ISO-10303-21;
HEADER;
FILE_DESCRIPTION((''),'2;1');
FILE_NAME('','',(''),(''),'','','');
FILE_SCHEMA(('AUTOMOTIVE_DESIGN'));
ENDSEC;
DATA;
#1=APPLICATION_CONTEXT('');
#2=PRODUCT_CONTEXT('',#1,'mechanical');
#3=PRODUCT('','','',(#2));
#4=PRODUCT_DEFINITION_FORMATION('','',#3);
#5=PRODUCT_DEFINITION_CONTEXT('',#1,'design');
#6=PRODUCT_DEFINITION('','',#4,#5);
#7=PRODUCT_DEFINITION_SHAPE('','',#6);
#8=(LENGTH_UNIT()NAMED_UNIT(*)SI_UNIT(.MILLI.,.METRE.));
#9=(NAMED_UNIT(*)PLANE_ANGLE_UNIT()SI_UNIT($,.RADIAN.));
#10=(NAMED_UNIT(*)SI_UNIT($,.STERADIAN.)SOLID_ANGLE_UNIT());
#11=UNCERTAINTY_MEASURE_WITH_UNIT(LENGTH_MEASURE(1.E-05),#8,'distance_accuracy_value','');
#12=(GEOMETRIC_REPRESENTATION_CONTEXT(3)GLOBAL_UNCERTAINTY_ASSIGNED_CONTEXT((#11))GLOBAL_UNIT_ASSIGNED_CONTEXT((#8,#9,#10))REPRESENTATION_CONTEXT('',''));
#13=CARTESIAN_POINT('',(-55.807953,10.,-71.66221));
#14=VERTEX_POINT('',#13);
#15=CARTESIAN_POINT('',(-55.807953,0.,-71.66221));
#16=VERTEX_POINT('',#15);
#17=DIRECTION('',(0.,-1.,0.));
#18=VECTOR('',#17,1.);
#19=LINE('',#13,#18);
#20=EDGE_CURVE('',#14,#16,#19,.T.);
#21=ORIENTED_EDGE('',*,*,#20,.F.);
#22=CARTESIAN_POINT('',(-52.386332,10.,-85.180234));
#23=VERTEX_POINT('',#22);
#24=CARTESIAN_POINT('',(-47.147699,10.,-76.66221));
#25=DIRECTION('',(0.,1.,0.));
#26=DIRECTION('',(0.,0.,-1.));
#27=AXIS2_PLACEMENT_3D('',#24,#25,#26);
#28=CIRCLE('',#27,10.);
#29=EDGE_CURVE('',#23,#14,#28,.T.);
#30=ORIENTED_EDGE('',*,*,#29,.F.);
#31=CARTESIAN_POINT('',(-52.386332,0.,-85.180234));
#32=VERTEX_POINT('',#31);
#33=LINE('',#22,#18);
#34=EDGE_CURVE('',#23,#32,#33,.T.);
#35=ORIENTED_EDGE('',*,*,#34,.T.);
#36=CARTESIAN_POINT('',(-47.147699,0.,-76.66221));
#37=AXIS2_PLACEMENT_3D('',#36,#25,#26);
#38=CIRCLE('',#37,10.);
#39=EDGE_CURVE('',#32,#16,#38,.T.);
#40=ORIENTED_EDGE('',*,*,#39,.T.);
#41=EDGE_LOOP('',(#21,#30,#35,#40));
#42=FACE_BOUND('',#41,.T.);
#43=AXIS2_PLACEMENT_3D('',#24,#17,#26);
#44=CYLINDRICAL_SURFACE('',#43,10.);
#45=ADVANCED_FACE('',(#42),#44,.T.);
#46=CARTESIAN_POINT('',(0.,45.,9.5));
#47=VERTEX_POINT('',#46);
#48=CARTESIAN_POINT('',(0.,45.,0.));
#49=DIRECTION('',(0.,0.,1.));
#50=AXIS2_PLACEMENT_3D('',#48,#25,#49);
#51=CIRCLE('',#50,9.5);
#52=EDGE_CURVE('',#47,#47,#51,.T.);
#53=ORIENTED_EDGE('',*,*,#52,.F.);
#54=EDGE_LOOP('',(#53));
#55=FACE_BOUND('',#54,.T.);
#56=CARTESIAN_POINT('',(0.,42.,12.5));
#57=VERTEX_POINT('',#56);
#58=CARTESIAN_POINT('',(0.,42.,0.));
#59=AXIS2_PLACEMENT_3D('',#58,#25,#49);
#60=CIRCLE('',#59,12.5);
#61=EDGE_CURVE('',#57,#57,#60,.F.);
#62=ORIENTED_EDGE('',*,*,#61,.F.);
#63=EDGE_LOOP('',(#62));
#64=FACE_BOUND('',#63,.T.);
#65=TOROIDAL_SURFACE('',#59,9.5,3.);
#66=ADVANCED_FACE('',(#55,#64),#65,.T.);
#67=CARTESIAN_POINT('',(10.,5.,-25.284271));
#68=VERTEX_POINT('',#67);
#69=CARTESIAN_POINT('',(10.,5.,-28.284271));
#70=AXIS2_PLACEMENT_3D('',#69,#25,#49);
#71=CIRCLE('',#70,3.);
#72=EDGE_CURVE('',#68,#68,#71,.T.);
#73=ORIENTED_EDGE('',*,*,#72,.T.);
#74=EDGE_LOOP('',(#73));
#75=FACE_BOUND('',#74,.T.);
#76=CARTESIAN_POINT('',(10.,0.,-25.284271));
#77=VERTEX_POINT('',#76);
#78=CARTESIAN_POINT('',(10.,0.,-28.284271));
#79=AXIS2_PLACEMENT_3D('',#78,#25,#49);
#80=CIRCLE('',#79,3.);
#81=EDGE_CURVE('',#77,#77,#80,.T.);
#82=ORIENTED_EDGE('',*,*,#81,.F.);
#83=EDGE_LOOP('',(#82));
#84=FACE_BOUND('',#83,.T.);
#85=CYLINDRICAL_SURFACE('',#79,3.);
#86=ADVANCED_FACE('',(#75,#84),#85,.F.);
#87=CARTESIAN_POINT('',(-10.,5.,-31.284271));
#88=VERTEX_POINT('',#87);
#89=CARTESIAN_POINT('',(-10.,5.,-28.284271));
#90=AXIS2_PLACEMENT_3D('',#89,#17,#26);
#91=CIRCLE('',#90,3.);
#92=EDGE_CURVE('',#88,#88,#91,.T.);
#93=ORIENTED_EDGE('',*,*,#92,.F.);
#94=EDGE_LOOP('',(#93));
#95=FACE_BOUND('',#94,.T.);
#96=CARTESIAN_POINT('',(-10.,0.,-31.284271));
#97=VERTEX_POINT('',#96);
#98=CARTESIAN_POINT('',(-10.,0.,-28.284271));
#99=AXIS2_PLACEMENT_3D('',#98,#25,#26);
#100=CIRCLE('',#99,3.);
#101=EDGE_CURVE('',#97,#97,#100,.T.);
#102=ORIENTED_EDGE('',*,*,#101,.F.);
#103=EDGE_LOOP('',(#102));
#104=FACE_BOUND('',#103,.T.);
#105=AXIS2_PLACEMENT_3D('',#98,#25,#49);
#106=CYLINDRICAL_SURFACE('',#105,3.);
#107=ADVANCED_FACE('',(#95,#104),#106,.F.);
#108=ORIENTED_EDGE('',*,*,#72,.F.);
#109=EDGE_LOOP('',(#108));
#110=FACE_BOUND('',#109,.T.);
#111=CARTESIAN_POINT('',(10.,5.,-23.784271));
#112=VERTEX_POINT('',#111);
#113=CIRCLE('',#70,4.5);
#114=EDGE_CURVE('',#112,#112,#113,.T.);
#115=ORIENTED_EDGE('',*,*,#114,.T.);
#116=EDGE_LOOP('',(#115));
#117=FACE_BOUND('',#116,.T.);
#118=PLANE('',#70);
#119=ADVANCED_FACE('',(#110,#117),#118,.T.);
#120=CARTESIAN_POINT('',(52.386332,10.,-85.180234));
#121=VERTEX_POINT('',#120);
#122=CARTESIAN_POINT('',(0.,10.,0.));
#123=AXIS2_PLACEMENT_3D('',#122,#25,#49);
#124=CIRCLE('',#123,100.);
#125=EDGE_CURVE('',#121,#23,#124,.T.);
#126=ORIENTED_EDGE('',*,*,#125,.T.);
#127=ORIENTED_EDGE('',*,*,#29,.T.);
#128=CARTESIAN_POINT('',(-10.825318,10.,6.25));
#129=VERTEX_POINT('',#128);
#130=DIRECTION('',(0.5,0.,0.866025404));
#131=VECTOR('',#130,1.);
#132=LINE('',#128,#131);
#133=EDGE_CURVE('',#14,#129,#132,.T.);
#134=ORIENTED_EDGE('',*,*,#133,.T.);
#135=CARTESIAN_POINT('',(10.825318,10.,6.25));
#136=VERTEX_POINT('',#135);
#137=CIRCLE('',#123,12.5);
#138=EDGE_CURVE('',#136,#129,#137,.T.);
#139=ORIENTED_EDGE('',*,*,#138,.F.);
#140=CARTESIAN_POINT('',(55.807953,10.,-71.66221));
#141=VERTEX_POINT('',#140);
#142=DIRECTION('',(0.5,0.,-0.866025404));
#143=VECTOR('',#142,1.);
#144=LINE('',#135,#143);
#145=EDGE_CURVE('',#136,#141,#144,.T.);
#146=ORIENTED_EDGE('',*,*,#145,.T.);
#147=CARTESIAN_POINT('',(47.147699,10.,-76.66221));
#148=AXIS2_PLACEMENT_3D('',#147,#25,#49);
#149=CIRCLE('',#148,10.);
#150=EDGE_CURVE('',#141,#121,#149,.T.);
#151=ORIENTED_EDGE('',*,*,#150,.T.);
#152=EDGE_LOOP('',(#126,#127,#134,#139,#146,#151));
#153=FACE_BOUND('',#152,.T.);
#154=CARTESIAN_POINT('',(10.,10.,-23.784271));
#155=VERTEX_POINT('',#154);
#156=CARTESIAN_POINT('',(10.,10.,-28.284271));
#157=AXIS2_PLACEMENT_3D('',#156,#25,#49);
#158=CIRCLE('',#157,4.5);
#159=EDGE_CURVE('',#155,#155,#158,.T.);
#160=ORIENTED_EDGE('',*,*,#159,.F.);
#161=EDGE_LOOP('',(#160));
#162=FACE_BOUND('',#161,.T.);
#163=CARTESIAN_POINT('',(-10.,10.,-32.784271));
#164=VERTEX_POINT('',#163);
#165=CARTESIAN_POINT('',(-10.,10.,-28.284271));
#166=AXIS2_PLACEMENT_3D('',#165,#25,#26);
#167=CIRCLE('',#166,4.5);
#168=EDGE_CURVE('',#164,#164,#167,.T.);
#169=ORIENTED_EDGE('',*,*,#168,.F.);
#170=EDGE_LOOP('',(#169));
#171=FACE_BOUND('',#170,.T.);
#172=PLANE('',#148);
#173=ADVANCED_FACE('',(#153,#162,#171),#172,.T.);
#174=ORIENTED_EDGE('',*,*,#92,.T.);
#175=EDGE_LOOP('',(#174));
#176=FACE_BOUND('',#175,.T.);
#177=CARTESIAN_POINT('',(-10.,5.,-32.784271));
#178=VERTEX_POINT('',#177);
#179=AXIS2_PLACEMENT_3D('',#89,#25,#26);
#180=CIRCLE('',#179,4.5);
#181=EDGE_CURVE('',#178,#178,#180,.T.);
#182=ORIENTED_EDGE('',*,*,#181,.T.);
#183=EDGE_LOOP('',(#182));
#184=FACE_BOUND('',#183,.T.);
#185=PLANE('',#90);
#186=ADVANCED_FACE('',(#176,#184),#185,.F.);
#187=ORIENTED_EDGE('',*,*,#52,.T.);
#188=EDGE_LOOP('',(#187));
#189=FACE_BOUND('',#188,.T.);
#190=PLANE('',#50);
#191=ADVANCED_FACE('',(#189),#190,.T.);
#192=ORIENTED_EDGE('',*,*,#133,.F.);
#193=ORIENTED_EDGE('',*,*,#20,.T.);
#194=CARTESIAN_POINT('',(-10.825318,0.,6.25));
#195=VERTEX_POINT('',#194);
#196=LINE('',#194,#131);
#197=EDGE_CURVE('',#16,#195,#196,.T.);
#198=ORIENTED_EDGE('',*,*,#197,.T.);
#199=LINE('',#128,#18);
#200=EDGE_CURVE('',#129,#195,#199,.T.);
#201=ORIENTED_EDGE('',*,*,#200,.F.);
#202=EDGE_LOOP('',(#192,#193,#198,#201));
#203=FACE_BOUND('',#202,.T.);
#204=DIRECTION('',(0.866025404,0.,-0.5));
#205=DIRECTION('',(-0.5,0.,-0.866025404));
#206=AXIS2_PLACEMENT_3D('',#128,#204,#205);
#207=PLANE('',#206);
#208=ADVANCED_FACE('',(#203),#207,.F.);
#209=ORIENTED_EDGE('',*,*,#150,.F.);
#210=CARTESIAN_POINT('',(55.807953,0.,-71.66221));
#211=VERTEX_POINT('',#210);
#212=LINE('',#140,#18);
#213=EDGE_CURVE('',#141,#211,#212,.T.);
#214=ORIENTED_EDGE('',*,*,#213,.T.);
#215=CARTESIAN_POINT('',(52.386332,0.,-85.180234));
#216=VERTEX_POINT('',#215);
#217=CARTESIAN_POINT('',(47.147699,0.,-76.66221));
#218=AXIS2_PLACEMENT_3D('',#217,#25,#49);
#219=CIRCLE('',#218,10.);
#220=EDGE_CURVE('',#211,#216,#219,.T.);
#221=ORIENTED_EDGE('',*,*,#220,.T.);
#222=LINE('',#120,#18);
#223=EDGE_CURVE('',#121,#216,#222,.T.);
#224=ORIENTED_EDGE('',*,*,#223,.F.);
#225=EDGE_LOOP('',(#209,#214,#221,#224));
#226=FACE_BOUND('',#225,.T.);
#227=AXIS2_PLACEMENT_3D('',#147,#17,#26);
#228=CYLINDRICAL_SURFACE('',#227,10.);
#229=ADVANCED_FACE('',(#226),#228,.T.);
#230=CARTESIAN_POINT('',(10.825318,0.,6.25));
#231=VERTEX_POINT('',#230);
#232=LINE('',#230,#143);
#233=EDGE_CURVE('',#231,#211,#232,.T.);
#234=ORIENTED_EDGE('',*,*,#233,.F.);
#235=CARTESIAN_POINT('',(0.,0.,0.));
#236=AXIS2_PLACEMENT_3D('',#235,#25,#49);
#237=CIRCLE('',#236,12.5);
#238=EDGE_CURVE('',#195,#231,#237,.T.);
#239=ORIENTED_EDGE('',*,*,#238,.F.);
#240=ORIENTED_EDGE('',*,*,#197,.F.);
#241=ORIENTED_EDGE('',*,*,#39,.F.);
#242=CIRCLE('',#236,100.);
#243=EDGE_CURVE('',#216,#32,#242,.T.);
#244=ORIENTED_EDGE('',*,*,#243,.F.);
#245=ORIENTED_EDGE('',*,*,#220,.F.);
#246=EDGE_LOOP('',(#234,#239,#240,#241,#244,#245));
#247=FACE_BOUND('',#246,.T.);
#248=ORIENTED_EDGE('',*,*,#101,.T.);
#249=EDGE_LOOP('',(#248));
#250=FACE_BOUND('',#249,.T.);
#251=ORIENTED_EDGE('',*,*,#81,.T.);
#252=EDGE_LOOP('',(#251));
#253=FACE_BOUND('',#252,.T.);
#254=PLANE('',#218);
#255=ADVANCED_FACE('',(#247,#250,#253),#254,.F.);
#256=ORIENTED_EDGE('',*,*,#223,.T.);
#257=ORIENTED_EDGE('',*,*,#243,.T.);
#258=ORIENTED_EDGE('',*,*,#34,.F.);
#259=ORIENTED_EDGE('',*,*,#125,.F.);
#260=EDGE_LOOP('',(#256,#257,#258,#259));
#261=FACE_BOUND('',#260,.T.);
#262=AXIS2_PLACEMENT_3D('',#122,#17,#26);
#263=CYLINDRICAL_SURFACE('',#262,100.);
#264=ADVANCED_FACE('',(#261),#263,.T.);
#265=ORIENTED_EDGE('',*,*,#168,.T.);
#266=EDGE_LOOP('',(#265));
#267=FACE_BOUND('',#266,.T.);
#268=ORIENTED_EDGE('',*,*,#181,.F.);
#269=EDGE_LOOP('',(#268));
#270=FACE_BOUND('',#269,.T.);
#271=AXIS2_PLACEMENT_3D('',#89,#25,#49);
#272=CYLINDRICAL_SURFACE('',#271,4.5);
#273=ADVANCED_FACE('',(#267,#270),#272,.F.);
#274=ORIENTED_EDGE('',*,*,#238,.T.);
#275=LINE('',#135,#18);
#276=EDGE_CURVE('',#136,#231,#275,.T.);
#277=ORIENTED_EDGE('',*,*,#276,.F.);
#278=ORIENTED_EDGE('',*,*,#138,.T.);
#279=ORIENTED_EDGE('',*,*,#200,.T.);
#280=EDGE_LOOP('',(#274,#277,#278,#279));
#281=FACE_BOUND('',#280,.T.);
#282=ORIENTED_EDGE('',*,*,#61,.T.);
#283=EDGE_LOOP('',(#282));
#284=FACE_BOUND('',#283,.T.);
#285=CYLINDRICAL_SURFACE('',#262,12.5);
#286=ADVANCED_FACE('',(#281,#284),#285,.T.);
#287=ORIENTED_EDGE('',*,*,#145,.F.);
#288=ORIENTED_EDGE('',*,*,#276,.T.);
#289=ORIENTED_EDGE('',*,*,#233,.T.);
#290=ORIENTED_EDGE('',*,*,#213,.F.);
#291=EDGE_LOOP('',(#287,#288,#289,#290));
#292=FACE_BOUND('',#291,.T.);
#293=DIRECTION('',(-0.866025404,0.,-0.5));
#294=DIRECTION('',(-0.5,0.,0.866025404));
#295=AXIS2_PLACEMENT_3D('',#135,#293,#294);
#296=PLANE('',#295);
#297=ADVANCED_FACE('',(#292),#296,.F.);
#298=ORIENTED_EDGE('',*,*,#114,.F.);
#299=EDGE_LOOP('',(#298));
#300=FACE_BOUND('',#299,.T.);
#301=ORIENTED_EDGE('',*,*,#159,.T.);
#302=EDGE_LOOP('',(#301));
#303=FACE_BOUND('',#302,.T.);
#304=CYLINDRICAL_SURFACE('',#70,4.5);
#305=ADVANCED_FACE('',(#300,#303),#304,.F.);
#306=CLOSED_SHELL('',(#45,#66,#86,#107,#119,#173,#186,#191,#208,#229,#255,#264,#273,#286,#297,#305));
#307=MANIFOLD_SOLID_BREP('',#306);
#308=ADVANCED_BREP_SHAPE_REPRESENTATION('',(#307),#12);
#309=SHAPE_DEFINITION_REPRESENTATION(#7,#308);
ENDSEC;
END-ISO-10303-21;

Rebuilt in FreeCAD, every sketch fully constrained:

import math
import FreeCAD as App
import Part
import Sketcher

V = App.Vector
Q = App.Units.Quantity


def edges_at(feature, points):
    """Names of the edges that pass closest to the given points."""
    edges = feature.Shape.Edges
    near = lambda p: min(range(len(edges)), key=lambda i: edges[i].distToShape(Part.Vertex(*p))[0])
    return sorted({f"Edge{near(p) + 1}" for p in points})

doc = App.newDocument("Part")
body = doc.addObject("PartDesign::Body", "Body")

sketch1 = body.newObject("Sketcher::SketchObject", "Sketch")
sketch1.AttachmentSupport = (doc.getObject("XZ_Plane"), [""])
sketch1.MapMode = "FlatFace"
sketch1.addGeometry([
    Part.LineSegment(V(-56, -72, 0), V(-11, 6, 0)),
    Part.ArcOfCircle(Part.Circle(V(0, 0, 0), V(0, 0, 1), 12), math.radians(30), math.radians(150)),
    Part.LineSegment(V(11, 6, 0), V(56, -72, 0)),
    Part.ArcOfCircle(Part.Circle(V(47, -77, 0), V(0, 0, 1), 10), math.radians(-58), math.radians(30)),
    Part.ArcOfCircle(Part.Circle(V(0, 0, 0), V(0, 0, 1), 100), math.radians(-122), math.radians(-58)),
    Part.ArcOfCircle(Part.Circle(V(-47, -77, 0), V(0, 0, 1), 10), math.radians(150), math.radians(238)),
], False)
sketch1.addConstraint([
    Sketcher.Constraint("Tangent", 0, 2, 1, 2),
    Sketcher.Constraint("Tangent", 1, 1, 2, 1),
    Sketcher.Constraint("Tangent", 2, 2, 3, 2),
    Sketcher.Constraint("Tangent", 3, 1, 4, 2),
    Sketcher.Constraint("Tangent", 4, 1, 5, 2),
    Sketcher.Constraint("Tangent", 5, 1, 0, 1),
    Sketcher.Constraint("Coincident", 1, 3, -1, 1),
    Sketcher.Constraint("Coincident", 4, 3, -1, 1),
    Sketcher.Constraint("Equal", 3, 5),
    Sketcher.Constraint("Horizontal", 3, 3, 5, 3),
    Sketcher.Constraint("Radius", 3, Q("10 mm")),
    Sketcher.Constraint("Radius", 4, Q("100 mm")),
    Sketcher.Constraint("Radius", 1, Q("12.5 mm")),
    Sketcher.Constraint("Angle", 0, Q("60 deg")),
])
pad1 = body.newObject("PartDesign::Pad", "Pad")
pad1.Profile = sketch1
pad1.Length = 10
pad1.Reversed = True

sketch2 = body.newObject("Sketcher::SketchObject", "Sketch001")
sketch2.AttachmentSupport = (doc.getObject("XZ_Plane"), [""])
sketch2.MapMode = "FlatFace"
sketch2.AttachmentOffset = App.Placement(V(0, 0, -10), App.Rotation())
sketch2.addGeometry([
    Part.Circle(V(10, -28.3, 0), V(0, 0, 1), 4.5),
    Part.Circle(V(-10, -28.3, 0), V(0, 0, 1), 4.5),
], False)
sketch2.addConstraint([
    Sketcher.Constraint("Equal", 0, 1),
    Sketcher.Constraint("Symmetric", 0, 3, 1, 3, -2),
    Sketcher.Constraint("Diameter", 0, Q("9 mm")),
    Sketcher.Constraint("DistanceX", -1, 1, 0, 3, Q("10 mm")),
    Sketcher.Constraint("DistanceY", 0, 3, -1, 1, Q("28.284271 mm")),
])
pocket1 = body.newObject("PartDesign::Pocket", "Pocket")
pocket1.Profile = sketch2
pocket1.Length = 5
pocket1.Reversed = True

sketch3 = body.newObject("Sketcher::SketchObject", "Sketch002")
sketch3.AttachmentSupport = (doc.getObject("XZ_Plane"), [""])
sketch3.MapMode = "FlatFace"
sketch3.AttachmentOffset = App.Placement(V(0, 0, -10), App.Rotation())
sketch3.addGeometry([
    Part.Circle(V(10, -28.3, 0), V(0, 0, 1), 3),
    Part.Circle(V(-10, -28.3, 0), V(0, 0, 1), 3),
], False)
sketch3.addConstraint([
    Sketcher.Constraint("Equal", 0, 1),
    Sketcher.Constraint("Symmetric", 0, 3, 1, 3, -2),
    Sketcher.Constraint("Diameter", 0, Q("6 mm")),
    Sketcher.Constraint("DistanceX", -1, 1, 0, 3, Q("10 mm")),
    Sketcher.Constraint("DistanceY", 0, 3, -1, 1, Q("28.284271 mm")),
])
pocket2 = body.newObject("PartDesign::Pocket", "Pocket001")
pocket2.Profile = sketch3
pocket2.Type = "ThroughAll"
pocket2.Reversed = True

sketch4 = body.newObject("Sketcher::SketchObject", "Sketch003")
sketch4.AttachmentSupport = (doc.getObject("XZ_Plane"), [""])
sketch4.MapMode = "FlatFace"
sketch4.AttachmentOffset = App.Placement(V(0, 0, -10), App.Rotation())
sketch4.addGeometry(Part.Circle(V(0, 0, 0), V(0, 0, 1), 12), False)
sketch4.addConstraint([
    Sketcher.Constraint("Coincident", 0, 3, -1, 1),
    Sketcher.Constraint("Diameter", 0, Q("25 mm")),
])
pad2 = body.newObject("PartDesign::Pad", "Pad001")
pad2.Profile = sketch4
pad2.Length = 35
pad2.Reversed = True
doc.recompute()

fillet = body.newObject("PartDesign::Fillet", "Fillet")
fillet.Base = (pad2, edges_at(pad2, [(-10.825, 45, -6.25)]))
fillet.Radius = 3

doc.recompute()
